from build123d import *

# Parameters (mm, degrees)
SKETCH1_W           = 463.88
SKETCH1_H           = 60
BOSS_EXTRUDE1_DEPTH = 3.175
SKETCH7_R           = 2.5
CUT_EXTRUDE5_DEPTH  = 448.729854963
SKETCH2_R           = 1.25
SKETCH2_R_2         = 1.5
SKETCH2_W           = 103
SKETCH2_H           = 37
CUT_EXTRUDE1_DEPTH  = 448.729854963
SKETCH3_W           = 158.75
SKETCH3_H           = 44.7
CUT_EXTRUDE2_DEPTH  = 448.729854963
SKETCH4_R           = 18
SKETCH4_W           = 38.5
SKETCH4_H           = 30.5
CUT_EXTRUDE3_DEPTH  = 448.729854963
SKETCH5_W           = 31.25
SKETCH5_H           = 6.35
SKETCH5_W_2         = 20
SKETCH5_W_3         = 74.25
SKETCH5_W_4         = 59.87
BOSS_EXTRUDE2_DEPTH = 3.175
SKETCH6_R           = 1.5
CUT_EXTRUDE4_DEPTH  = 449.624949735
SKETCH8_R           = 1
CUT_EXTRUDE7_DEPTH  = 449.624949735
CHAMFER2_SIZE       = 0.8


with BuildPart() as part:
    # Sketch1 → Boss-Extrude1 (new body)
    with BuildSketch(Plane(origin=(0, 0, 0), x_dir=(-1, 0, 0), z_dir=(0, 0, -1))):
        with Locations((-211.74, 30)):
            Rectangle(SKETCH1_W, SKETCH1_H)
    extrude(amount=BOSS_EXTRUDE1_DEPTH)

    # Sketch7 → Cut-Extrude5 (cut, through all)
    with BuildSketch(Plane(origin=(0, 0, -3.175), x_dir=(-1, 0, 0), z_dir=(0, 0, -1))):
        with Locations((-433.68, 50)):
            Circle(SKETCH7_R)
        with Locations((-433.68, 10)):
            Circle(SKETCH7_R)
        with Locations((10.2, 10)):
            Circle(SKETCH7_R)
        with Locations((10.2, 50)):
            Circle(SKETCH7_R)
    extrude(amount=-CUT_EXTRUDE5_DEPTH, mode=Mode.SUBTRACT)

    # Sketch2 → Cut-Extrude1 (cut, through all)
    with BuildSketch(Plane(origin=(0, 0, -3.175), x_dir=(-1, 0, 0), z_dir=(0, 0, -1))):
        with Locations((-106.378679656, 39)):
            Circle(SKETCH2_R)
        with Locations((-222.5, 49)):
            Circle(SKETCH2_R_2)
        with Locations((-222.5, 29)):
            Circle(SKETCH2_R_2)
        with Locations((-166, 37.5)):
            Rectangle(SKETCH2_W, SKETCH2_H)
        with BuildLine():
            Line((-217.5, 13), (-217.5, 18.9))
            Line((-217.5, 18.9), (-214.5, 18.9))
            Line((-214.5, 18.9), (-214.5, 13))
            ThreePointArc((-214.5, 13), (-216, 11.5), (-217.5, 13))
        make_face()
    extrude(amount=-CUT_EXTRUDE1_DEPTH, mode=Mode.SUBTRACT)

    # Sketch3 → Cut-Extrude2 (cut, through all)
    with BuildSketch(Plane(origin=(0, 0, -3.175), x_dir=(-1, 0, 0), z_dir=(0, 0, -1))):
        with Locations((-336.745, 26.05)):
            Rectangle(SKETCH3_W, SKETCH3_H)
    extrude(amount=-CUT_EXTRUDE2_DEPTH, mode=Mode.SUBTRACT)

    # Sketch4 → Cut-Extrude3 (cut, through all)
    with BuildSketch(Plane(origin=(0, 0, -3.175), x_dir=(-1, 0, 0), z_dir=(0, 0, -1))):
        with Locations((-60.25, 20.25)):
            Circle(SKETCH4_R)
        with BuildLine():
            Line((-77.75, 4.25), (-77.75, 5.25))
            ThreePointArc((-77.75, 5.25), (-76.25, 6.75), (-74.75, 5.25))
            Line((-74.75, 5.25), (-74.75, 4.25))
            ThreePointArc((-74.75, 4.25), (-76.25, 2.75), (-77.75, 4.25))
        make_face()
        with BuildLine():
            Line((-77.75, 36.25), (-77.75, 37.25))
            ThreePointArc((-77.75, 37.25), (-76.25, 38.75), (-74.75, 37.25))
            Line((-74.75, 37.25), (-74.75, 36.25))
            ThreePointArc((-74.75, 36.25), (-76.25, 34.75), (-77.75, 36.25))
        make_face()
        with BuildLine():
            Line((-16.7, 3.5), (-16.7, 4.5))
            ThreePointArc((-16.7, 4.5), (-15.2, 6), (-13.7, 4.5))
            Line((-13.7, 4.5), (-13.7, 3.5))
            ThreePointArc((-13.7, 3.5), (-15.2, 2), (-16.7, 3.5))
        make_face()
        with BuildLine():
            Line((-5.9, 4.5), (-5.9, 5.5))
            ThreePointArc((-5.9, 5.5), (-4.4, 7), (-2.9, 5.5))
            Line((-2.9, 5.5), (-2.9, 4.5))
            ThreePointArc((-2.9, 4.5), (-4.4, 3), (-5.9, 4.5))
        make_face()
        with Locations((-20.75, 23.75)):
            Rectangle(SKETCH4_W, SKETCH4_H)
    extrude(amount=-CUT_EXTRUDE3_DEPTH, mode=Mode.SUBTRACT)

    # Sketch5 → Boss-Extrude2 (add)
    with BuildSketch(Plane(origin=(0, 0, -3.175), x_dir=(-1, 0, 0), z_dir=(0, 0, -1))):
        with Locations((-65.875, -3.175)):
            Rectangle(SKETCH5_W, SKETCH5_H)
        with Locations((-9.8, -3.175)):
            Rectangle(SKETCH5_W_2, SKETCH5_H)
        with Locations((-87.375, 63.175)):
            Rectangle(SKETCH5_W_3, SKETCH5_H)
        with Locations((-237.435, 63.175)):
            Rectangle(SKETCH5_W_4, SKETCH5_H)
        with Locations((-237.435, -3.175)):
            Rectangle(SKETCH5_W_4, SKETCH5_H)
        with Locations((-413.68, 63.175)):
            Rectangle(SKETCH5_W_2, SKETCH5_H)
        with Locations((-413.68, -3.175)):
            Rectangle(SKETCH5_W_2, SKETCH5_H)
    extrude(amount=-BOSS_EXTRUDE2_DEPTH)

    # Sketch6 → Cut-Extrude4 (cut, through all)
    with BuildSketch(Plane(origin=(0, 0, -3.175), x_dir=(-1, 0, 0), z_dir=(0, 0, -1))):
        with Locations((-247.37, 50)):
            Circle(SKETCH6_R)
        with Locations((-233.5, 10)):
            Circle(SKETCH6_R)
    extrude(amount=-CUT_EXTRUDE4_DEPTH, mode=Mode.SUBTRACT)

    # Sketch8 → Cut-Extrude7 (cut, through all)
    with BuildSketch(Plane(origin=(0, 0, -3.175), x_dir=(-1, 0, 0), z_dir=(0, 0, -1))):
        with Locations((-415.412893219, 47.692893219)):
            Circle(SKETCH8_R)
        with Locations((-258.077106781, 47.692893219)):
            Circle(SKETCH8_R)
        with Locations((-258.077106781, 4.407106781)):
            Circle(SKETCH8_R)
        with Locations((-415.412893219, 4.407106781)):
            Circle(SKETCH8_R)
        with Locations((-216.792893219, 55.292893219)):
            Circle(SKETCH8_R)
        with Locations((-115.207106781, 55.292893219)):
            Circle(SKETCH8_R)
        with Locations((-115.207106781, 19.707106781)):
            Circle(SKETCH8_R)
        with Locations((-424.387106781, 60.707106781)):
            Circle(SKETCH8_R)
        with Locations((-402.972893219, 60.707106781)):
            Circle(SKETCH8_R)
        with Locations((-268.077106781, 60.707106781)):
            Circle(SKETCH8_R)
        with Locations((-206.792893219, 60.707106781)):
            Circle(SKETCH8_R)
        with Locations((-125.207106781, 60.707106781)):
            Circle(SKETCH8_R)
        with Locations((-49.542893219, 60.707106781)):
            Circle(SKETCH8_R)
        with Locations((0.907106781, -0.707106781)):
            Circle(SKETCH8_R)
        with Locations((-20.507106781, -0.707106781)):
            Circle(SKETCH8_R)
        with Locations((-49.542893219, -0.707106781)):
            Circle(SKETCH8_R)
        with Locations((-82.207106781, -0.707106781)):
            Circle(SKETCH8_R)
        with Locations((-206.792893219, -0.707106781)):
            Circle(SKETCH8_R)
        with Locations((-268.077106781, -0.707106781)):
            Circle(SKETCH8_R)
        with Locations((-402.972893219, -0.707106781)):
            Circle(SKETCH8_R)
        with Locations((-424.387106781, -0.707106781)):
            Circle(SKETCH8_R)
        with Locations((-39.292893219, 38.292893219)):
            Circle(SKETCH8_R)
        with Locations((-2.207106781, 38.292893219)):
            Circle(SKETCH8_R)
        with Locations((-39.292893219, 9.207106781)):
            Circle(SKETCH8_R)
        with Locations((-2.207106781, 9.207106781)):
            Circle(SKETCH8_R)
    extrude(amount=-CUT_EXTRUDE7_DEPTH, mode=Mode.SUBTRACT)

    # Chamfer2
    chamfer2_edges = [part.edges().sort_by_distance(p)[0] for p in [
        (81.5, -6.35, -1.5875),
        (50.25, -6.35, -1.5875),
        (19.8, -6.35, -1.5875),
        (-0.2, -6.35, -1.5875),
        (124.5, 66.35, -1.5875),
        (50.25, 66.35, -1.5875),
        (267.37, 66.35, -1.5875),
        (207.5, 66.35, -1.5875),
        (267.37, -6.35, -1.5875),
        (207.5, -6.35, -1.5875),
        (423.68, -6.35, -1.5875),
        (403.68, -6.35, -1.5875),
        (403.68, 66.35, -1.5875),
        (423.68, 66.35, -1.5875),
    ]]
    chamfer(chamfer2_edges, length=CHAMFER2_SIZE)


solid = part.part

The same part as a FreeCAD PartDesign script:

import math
import FreeCAD as App
import Part
import Sketcher

V = App.Vector


def edges_at(feature, points):
    """Names of the edges that pass closest to the given points."""
    edges = feature.Shape.Edges
    near = lambda p: min(range(len(edges)), key=lambda i: edges[i].distToShape(Part.Vertex(*p))[0])
    return sorted({f"Edge{near(p) + 1}" for p in points})


def add_polygon(sketch, points):
    """Adds a closed chain of lines whose ends are joined by coincident constraints."""
    first, n = sketch.GeometryCount, len(points)
    for a, b in zip(points, points[1:] + points[:1]):
        sketch.addGeometry(Part.LineSegment(App.Vector(*a, 0), App.Vector(*b, 0)), False)
    for i in range(n):
        sketch.addConstraint(Sketcher.Constraint("Coincident", first + i, 2, first + (i + 1) % n, 1))

doc = App.newDocument("Part")
body = doc.addObject("PartDesign::Body", "Body")

# Sketch on XY plane
sketch1 = body.newObject("Sketcher::SketchObject", "Sketch")
sketch1.AttachmentSupport = (doc.getObject("XY_Plane"), [""])
sketch1.MapMode = "FlatFace"
add_polygon(sketch1, [(444, 60), (444, 0), (-20, 0), (-20, 60)])  # lines 0-3
sketch1.addConstraint([
    Sketcher.Constraint("Vertical", 0),
    Sketcher.Constraint("Horizontal", 1),
    Sketcher.Constraint("Vertical", 2),
    Sketcher.Constraint("Horizontal", 3),
    Sketcher.Constraint("PointOnObject", 0, 2, -1),
    Sketcher.Constraint("DistanceY", 0, 2, 0, 1, 60.0),
    Sketcher.Constraint("DistanceX", 1, 2, 1, 1, 463.88),
    Sketcher.Constraint("DistanceX", 1, 2, -1, 1, 20.2),
])
pad1 = body.newObject("PartDesign::Pad", "Pad")
pad1.Profile = sketch1
pad1.Length = 3.175
pad1.Reversed = True

# Sketch on XY plane
sketch2 = body.newObject("Sketcher::SketchObject", "Sketch001")
sketch2.AttachmentSupport = (doc.getObject("XY_Plane"), [""])
sketch2.MapMode = "FlatFace"
sketch2.AttachmentOffset = App.Placement(V(0, 0, -3.175), App.Rotation())
sketch2.addGeometry([
    Part.Circle(V(433.7, 50, 0), V(0, 0, 1), 2.5),
    Part.Circle(V(433.7, 10, 0), V(0, 0, 1), 2.5),
    Part.Circle(V(-10.2, 10, 0), V(0, 0, 1), 2.5),
    Part.Circle(V(-10.2, 50, 0), V(0, 0, 1), 2.5),
], False)
sketch2.addConstraint([
    Sketcher.Constraint("Equal", 0, 1),
    Sketcher.Constraint("Equal", 1, 2),
    Sketcher.Constraint("Equal", 2, 3),
    Sketcher.Constraint("Horizontal", 1, 3, 2, 3),
    Sketcher.Constraint("Horizontal", 0, 3, 3, 3),
    Sketcher.Constraint("Vertical", 0, 3, 1, 3),
    Sketcher.Constraint("Vertical", 2, 3, 3, 3),
    Sketcher.Constraint("Diameter", 0, 5.0),
    Sketcher.Constraint("DistanceY", -1, 1, 0, 3, 50.0),
    Sketcher.Constraint("DistanceY", -1, 1, 1, 3, 10.0),
    Sketcher.Constraint("DistanceX", 2, 3, -1, 1, 10.2),
    Sketcher.Constraint("DistanceX", -1, 1, 0, 3, 433.68),
])
pocket1 = body.newObject("PartDesign::Pocket", "Pocket")
pocket1.Profile = sketch2
pocket1.Type = "ThroughAll"
pocket1.Reversed = True

# Sketch on XY plane
sketch3 = body.newObject("Sketcher::SketchObject", "Sketch002")
sketch3.AttachmentSupport = (doc.getObject("XY_Plane"), [""])
sketch3.MapMode = "FlatFace"
sketch3.AttachmentOffset = App.Placement(V(0, 0, -3.175), App.Rotation())
sketch3.addGeometry(Part.Circle(V(106.4, 39, 0), V(0, 0, 1), 1.2), False)  # 0
sketch3.addGeometry(Part.Circle(V(222.5, 49, 0), V(0, 0, 1), 1.5), False)  # 1
sketch3.addGeometry(Part.Circle(V(222.5, 29, 0), V(0, 0, 1), 1.5), False)  # 2
add_polygon(sketch3, [(217.5, 56), (217.5, 19), (114.5, 19), (114.5, 56)])  # lines 3-6
sketch3.addGeometry(Part.LineSegment(V(217.5, 18.9, 0), V(217.5, 13, 0)), False)  # 7
sketch3.addGeometry(Part.ArcOfCircle(Part.Circle(V(216, 13, 0), V(0, 0, 1), 1.5), math.radians(180), math.radians(360)), False)  # 8
sketch3.addGeometry(Part.LineSegment(V(214.5, 13, 0), V(214.5, 18.9, 0)), False)  # 9
sketch3.addGeometry(Part.LineSegment(V(214.5, 18.9, 0), V(217.5, 18.9, 0)), False)  # 10
sketch3.addConstraint([
    Sketcher.Constraint("Tangent", 7, 2, 8, 2),
    Sketcher.Constraint("Tangent", 8, 1, 9, 1),
    Sketcher.Constraint("Coincident", 9, 2, 10, 1),
    Sketcher.Constraint("Coincident", 10, 2, 7, 1),
    Sketcher.Constraint("Vertical", 3),
    Sketcher.Constraint("Horizontal", 4),
    Sketcher.Constraint("Vertical", 5),
    Sketcher.Constraint("Horizontal", 6),
    Sketcher.Constraint("Vertical", 7),
    Sketcher.Constraint("Vertical", 9),
    Sketcher.Constraint("Horizontal", 10),
    Sketcher.Constraint("Equal", 1, 2),
    Sketcher.Constraint("Equal", 2, 8),
    Sketcher.Constraint("Vertical", 1, 3, 2, 3),
    Sketcher.Constraint("Vertical", 6, 2, 7, 2),
    Sketcher.Constraint("Diameter", 1, 3.0),
    Sketcher.Constraint("Diameter", 0, 2.5),
    Sketcher.Constraint("DistanceX", 4, 2, 4, 1, 103.0),
    Sketcher.Constraint("DistanceY", 3, 2, 3, 1, 37.0),
    Sketcher.Constraint("DistanceY", 7, 2, 7, 1, 5.9),
    Sketcher.Constraint("DistanceY", -1, 1, 0, 3, 39.0),
    Sketcher.Constraint("DistanceY", -1, 1, 1, 3, 49.0),
    Sketcher.Constraint("DistanceY", -1, 1, 2, 3, 29.0),
    Sketcher.Constraint("DistanceX", -1, 1, 8, 3, 216.0),
    Sketcher.Constraint("DistanceY", -1, 1, 8, 3, 13.0),
    Sketcher.Constraint("DistanceY", -1, 1, 3, 2, 19.0),
    Sketcher.Constraint("DistanceX", 3, 2, 2, 3, 5.0),
    Sketcher.Constraint("DistanceX", -1, 1, 0, 3, 106.37868),
])
pocket2 = body.newObject("PartDesign::Pocket", "Pocket001")
pocket2.Profile = sketch3
pocket2.Type = "ThroughAll"
pocket2.Reversed = True

# Sketch on XY plane
sketch4 = body.newObject("Sketcher::SketchObject", "Sketch003")
sketch4.AttachmentSupport = (doc.getObject("XY_Plane"), [""])
sketch4.MapMode = "FlatFace"
sketch4.AttachmentOffset = App.Placement(V(0, 0, -3.175), App.Rotation())
add_polygon(sketch4, [(416, 48), (416, 4), (257, 4), (257, 48)])  # lines 0-3
sketch4.addConstraint([
    Sketcher.Constraint("Vertical", 0),
    Sketcher.Constraint("Horizontal", 1),
    Sketcher.Constraint("Vertical", 2),
    Sketcher.Constraint("Horizontal", 3),
    Sketcher.Constraint("DistanceY", 0, 2, 0, 1, 44.7),
    Sketcher.Constraint("DistanceX", 1, 2, 1, 1, 158.75),
    Sketcher.Constraint("DistanceY", -1, 1, 0, 2, 3.7),
    Sketcher.Constraint("DistanceX", -1, 1, 0, 2, 416.12),
])
pocket3 = body.newObject("PartDesign::Pocket", "Pocket002")
pocket3.Profile = sketch4
pocket3.Type = "ThroughAll"
pocket3.Reversed = True

# Sketch on XY plane
sketch5 = body.newObject("Sketcher::SketchObject", "Sketch004")
sketch5.AttachmentSupport = (doc.getObject("XY_Plane"), [""])
sketch5.MapMode = "FlatFace"
sketch5.AttachmentOffset = App.Placement(V(0, 0, -3.175), App.Rotation())
sketch5.addGeometry(Part.Circle(V(60.2, 20.2, 0), V(0, 0, 1), 18), False)  # 0
sketch5.addGeometry(Part.LineSegment(V(77.8, 5.2, 0), V(77.8, 4.2, 0)), False)  # 1
sketch5.addGeometry(Part.ArcOfCircle(Part.Circle(V(76.2, 4.2, 0), V(0, 0, 1), 1.5), math.radians(180), math.radians(360)), False)  # 2
sketch5.addGeometry(Part.LineSegment(V(74.8, 4.2, 0), V(74.8, 5.2, 0)), False)  # 3
sketch5.addGeometry(Part.ArcOfCircle(Part.Circle(V(76.2, 5.2, 0), V(0, 0, 1), 1.5), math.radians(0), math.radians(180)), False)  # 4
sketch5.addGeometry(Part.LineSegment(V(77.8, 37.2, 0), V(77.8, 36.2, 0)), False)  # 5
sketch5.addGeometry(Part.ArcOfCircle(Part.Circle(V(76.2, 36.2, 0), V(0, 0, 1), 1.5), math.radians(180), math.radians(360)), False)  # 6
sketch5.addGeometry(Part.LineSegment(V(74.8, 36.2, 0), V(74.8, 37.2, 0)), False)  # 7
sketch5.addGeometry(Part.ArcOfCircle(Part.Circle(V(76.2, 37.2, 0), V(0, 0, 1), 1.5), math.radians(0), math.radians(180)), False)  # 8
sketch5.addGeometry(Part.LineSegment(V(16.7, 4.5, 0), V(16.7, 3.5, 0)), False)  # 9
sketch5.addGeometry(Part.ArcOfCircle(Part.Circle(V(15.2, 3.5, 0), V(0, 0, 1), 1.5), math.radians(180), math.radians(360)), False)  # 10
sketch5.addGeometry(Part.LineSegment(V(13.7, 3.5, 0), V(13.7, 4.5, 0)), False)  # 11
sketch5.addGeometry(Part.ArcOfCircle(Part.Circle(V(15.2, 4.5, 0), V(0, 0, 1), 1.5), math.radians(0), math.radians(180)), False)  # 12
sketch5.addGeometry(Part.LineSegment(V(5.9, 5.5, 0), V(5.9, 4.5, 0)), False)  # 13
sketch5.addGeometry(Part.ArcOfCircle(Part.Circle(V(4.4, 4.5, 0), V(0, 0, 1), 1.5), math.radians(180), math.radians(360)), False)  # 14
sketch5.addGeometry(Part.LineSegment(V(2.9, 4.5, 0), V(2.9, 5.5, 0)), False)  # 15
sketch5.addGeometry(Part.ArcOfCircle(Part.Circle(V(4.4, 5.5, 0), V(0, 0, 1), 1.5), math.radians(0), math.radians(180)), False)  # 16
add_polygon(sketch5, [(40, 39), (40, 8.5), (1.5, 8.5), (1.5, 39)])  # lines 17-20
sketch5.addConstraint([
    Sketcher.Constraint("Tangent", 1, 2, 2, 2),
    Sketcher.Constraint("Tangent", 2, 1, 3, 1),
    Sketcher.Constraint("Tangent", 3, 2, 4, 2),
    Sketcher.Constraint("Tangent", 4, 1, 1, 1),
    Sketcher.Constraint("Tangent", 5, 2, 6, 2),
    Sketcher.Constraint("Tangent", 6, 1, 7, 1),
    Sketcher.Constraint("Tangent", 7, 2, 8, 2),
    Sketcher.Constraint("Tangent", 8, 1, 5, 1),
    Sketcher.Constraint("Tangent", 9, 2, 10, 2),
    Sketcher.Constraint("Tangent", 10, 1, 11, 1),
    Sketcher.Constraint("Tangent", 11, 2, 12, 2),
    Sketcher.Constraint("Tangent", 12, 1, 9, 1),
    Sketcher.Constraint("Tangent", 13, 2, 14, 2),
    Sketcher.Constraint("Tangent", 14, 1, 15, 1),
    Sketcher.Constraint("Tangent", 15, 2, 16, 2),
    Sketcher.Constraint("Tangent", 16, 1, 13, 1),
    Sketcher.Constraint("Vertical", 1),
    Sketcher.Constraint("Vertical", 3),
    Sketcher.Constraint("Vertical", 5),
    Sketcher.Constraint("Vertical", 7),
    Sketcher.Constraint("Vertical", 9),
    Sketcher.Constraint("Vertical", 11),
    Sketcher.Constraint("Vertical", 13),
    Sketcher.Constraint("Vertical", 15),
    Sketcher.Constraint("Vertical", 17),
    Sketcher.Constraint("Horizontal", 18),
    Sketcher.Constraint("Vertical", 19),
    Sketcher.Constraint("Horizontal", 20),
    Sketcher.Constraint("Equal", 4, 6),
    Sketcher.Constraint("Equal", 8, 10),
    Sketcher.Constraint("Equal", 12, 14),
    Sketcher.Constraint("Horizontal", 12, 3, 14, 3),
    Sketcher.Constraint("Vertical", 4, 3, 6, 3),
    Sketcher.Constraint("Equal", 3, 5),
    Sketcher.Constraint("Equal", 7, 9),
    Sketcher.Constraint("Equal", 11, 13),
    Sketcher.Constraint("Diameter", 0, 36.0),
    Sketcher.Constraint("Radius", 2, 1.5),
    Sketcher.Constraint("DistanceY", 1, 2, 1, 1, 1.0),
    Sketcher.Constraint("DistanceX", 18, 2, 18, 1, 38.5),
    Sketcher.Constraint("DistanceY", 17, 2, 17, 1, 30.5),
    Sketcher.Constraint("DistanceX", -1, 1, 17, 2, 40.0),
    Sketcher.Constraint("DistanceY", -1, 1, 19, 2, 39.0),
    Sketcher.Constraint("DistanceX", 0, 3, 2, 3, 16.0),
    Sketcher.Constraint("DistanceY", 2, 3, 0, 3, 16.0),
    Sketcher.Constraint("DistanceY", 0, 3, 6, 3, 16.0),
    Sketcher.Constraint("DistanceY", 12, 1, 17, 2, 4.0),
    Sketcher.Constraint("DistanceX", -1, 1, 10, 3, 15.2),
    Sketcher.Constraint("DistanceX", -1, 1, 14, 3, 4.4),
    Sketcher.Constraint("DistanceX", -1, 1, 0, 3, 60.25),
    Sketcher.Constraint("DistanceY", -1, 1, 0, 3, 20.25),
])
pocket4 = body.newObject("PartDesign::Pocket", "Pocket003")
pocket4.Profile = sketch5
pocket4.Type = "ThroughAll"
pocket4.Reversed = True

# Sketch on XY plane
sketch6 = body.newObject("Sketcher::SketchObject", "Sketch005")
sketch6.AttachmentSupport = (doc.getObject("XY_Plane"), [""])
sketch6.MapMode = "FlatFace"
sketch6.AttachmentOffset = App.Placement(V(0, 0, -3.175), App.Rotation())
add_polygon(sketch6, [(82, 0), (82, -6), (50, -6), (50, 0)])  # lines 0-3
add_polygon(sketch6, [(20, 0), (20, -6), (0, -6), (0, 0)])  # lines 4-7
add_polygon(sketch6, [(124, 66), (124, 60), (50, 60), (50, 66)])  # lines 8-11
add_polygon(sketch6, [(267, 66), (267, 60), (208, 60), (208, 66)])  # lines 12-15
add_polygon(sketch6, [(267, 0), (267, -6), (208, -6), (208, 0)])  # lines 16-19
add_polygon(sketch6, [(424, 66), (424, 60), (404, 60), (404, 66)])  # lines 20-23
add_polygon(sketch6, [(424, 0), (424, -6), (404, -6), (404, 0)])  # lines 24-27
sketch6.addConstraint([
    Sketcher.Constraint("Vertical", 0),
    Sketcher.Constraint("Horizontal", 1),
    Sketcher.Constraint("Vertical", 2),
    Sketcher.Constraint("Horizontal", 3),
    Sketcher.Constraint("Vertical", 4),
    Sketcher.Constraint("Horizontal", 5),
    Sketcher.Constraint("Vertical", 6),
    Sketcher.Constraint("Horizontal", 7),
    Sketcher.Constraint("Vertical", 8),
    Sketcher.Constraint("Horizontal", 9),
    Sketcher.Constraint("Vertical", 10),
    Sketcher.Constraint("Horizontal", 11),
    Sketcher.Constraint("Vertical", 12),
    Sketcher.Constraint("Horizontal", 13),
    Sketcher.Constraint("Vertical", 14),
    Sketcher.Constraint("Horizontal", 15),
    Sketcher.Constraint("Vertical", 16),
    Sketcher.Constraint("Horizontal", 17),
    Sketcher.Constraint("Vertical", 18),
    Sketcher.Constraint("Horizontal", 19),
    Sketcher.Constraint("Vertical", 20),
    Sketcher.Constraint("Horizontal", 21),
    Sketcher.Constraint("Vertical", 22),
    Sketcher.Constraint("Horizontal", 23),
    Sketcher.Constraint("Vertical", 24),
    Sketcher.Constraint("Horizontal", 25),
    Sketcher.Constraint("Vertical", 26),
    Sketcher.Constraint("Horizontal", 27),
    Sketcher.Constraint("PointOnObject", 2, 2, -1),
    Sketcher.Constraint("PointOnObject", 6, 2, -1),
    Sketcher.Constraint("PointOnObject", 18, 2, -1),
    Sketcher.Constraint("PointOnObject", 26, 2, -1),
    Sketcher.Constraint("Horizontal", 1, 2, 4, 2),
    Sketcher.Constraint("Horizontal", 9, 2, 12, 2),
    Sketcher.Constraint("Horizontal", 11, 2, 14, 2),
    Sketcher.Constraint("Horizontal", 5, 2, 16, 2),
    Sketcher.Constraint("Horizontal", 13, 2, 20, 2),
    Sketcher.Constraint("Horizontal", 15, 2, 22, 2),
    Sketcher.Constraint("Horizontal", 17, 2, 24, 2),
    Sketcher.Constraint("Vertical", 2, 2, 9, 2),
    Sketcher.Constraint("Vertical", 15, 2, 16, 2),
    Sketcher.Constraint("Vertical", 14, 2, 17, 2),
    Sketcher.Constraint("Vertical", 23, 2, 24, 2),
    Sketcher.Constraint("Vertical", 22, 2, 25, 2),
    Sketcher.Constraint("Equal", 7, 21),
    Sketcher.Constraint("Equal", 6, 8),
    Sketcher.Constraint("DistanceX", 5, 2, 5, 1, 20.0),
    Sketcher.Constraint("DistanceY", -1, 1, 8, 2, 60.0),
    Sketcher.Constraint("DistanceX", 3, 2, 8, 2, 43.0),
    Sketcher.Constraint("DistanceX", 8, 2, 13, 2, 83.0),
    Sketcher.Constraint("DistanceX", 1, 2, 1, 1, 31.25),
    Sketcher.Constraint("DistanceX", 13, 2, 13, 1, 59.87),
    Sketcher.Constraint("DistanceY", 0, 2, 0, 1, 6.35),
    Sketcher.Constraint("DistanceX", -1, 1, 0, 2, 81.5),
    Sketcher.Constraint("DistanceX", -1, 1, 4, 2, 19.8),
    Sketcher.Constraint("DistanceX", -1, 1, 20, 2, 423.68),
])
pad2 = body.newObject("PartDesign::Pad", "Pad001")
pad2.Profile = sketch6
pad2.Length = 3.175

# Sketch on XY plane
sketch7 = body.newObject("Sketcher::SketchObject", "Sketch006")
sketch7.AttachmentSupport = (doc.getObject("XY_Plane"), [""])
sketch7.MapMode = "FlatFace"
sketch7.AttachmentOffset = App.Placement(V(0, 0, -3.175), App.Rotation())
sketch7.addGeometry([
    Part.Circle(V(247.4, 50, 0), V(0, 0, 1), 1.5),
    Part.Circle(V(233.5, 10, 0), V(0, 0, 1), 1.5),
], False)
sketch7.addConstraint([
    Sketcher.Constraint("Equal", 0, 1),
    Sketcher.Constraint("Diameter", 0, 3.0),
    Sketcher.Constraint("DistanceY", -1, 1, 0, 3, 50.0),
    Sketcher.Constraint("DistanceY", -1, 1, 1, 3, 10.0),
    Sketcher.Constraint("DistanceX", -1, 1, 1, 3, 233.5),
    Sketcher.Constraint("DistanceX", -1, 1, 0, 3, 247.37),
])
pocket5 = body.newObject("PartDesign::Pocket", "Pocket004")
pocket5.Profile = sketch7
pocket5.Type = "ThroughAll"
pocket5.Reversed = True

# Sketch on XY plane
sketch8 = body.newObject("Sketcher::SketchObject", "Sketch007")
sketch8.AttachmentSupport = (doc.getObject("XY_Plane"), [""])
sketch8.MapMode = "FlatFace"
sketch8.AttachmentOffset = App.Placement(V(0, 0, -3.175), App.Rotation())
sketch8.addGeometry([
    Part.Circle(V(415.4, 47.7, 0), V(0, 0, 1), 1),  # 0
    Part.Circle(V(258.1, 47.7, 0), V(0, 0, 1), 1),  # 1
    Part.Circle(V(258.1, 4.4, 0), V(0, 0, 1), 1),  # 2
    Part.Circle(V(415.4, 4.4, 0), V(0, 0, 1), 1),  # 3
    Part.Circle(V(216.8, 55.3, 0), V(0, 0, 1), 1),  # 4
    Part.Circle(V(115.2, 55.3, 0), V(0, 0, 1), 1),  # 5
    Part.Circle(V(115.2, 19.7, 0), V(0, 0, 1), 1),  # 6
    Part.Circle(V(424.4, 60.7, 0), V(0, 0, 1), 1),  # 7
    Part.Circle(V(403, 60.7, 0), V(0, 0, 1), 1),  # 8
    Part.Circle(V(268.1, 60.7, 0), V(0, 0, 1), 1),  # 9
    Part.Circle(V(206.8, 60.7, 0), V(0, 0, 1), 1),  # 10
    Part.Circle(V(125.2, 60.7, 0), V(0, 0, 1), 1),  # 11
    Part.Circle(V(49.5, 60.7, 0), V(0, 0, 1), 1),  # 12
    Part.Circle(V(-0.9, -0.7, 0), V(0, 0, 1), 1),  # 13
    Part.Circle(V(20.5, -0.7, 0), V(0, 0, 1), 1),  # 14
    Part.Circle(V(49.5, -0.7, 0), V(0, 0, 1), 1),  # 15
    Part.Circle(V(82.2, -0.7, 0), V(0, 0, 1), 1),  # 16
    Part.Circle(V(206.8, -0.7, 0), V(0, 0, 1), 1),  # 17
    Part.Circle(V(268.1, -0.7, 0), V(0, 0, 1), 1),  # 18
    Part.Circle(V(403, -0.7, 0), V(0, 0, 1), 1),  # 19
    Part.Circle(V(424.4, -0.7, 0), V(0, 0, 1), 1),  # 20
    Part.Circle(V(39.3, 38.3, 0), V(0, 0, 1), 1),  # 21
    Part.Circle(V(2.2, 38.3, 0), V(0, 0, 1), 1),  # 22
    Part.Circle(V(39.3, 9.2, 0), V(0, 0, 1), 1),  # 23
    Part.Circle(V(2.2, 9.2, 0), V(0, 0, 1), 1),  # 24
], False)
sketch8.addConstraint([
    Sketcher.Constraint("Equal", 0, 1),
    Sketcher.Constraint("Equal", 1, 2),
    Sketcher.Constraint("Equal", 2, 3),
    Sketcher.Constraint("Equal", 3, 4),
    Sketcher.Constraint("Equal", 4, 5),
    Sketcher.Constraint("Equal", 5, 6),
    Sketcher.Constraint("Equal", 6, 7),
    Sketcher.Constraint("Equal", 7, 8),
    Sketcher.Constraint("Equal", 8, 9),
    Sketcher.Constraint("Equal", 9, 10),
    Sketcher.Constraint("Equal", 10, 11),
    Sketcher.Constraint("Equal", 11, 12),
    Sketcher.Constraint("Equal", 12, 13),
    Sketcher.Constraint("Equal", 13, 14),
    Sketcher.Constraint("Equal", 14, 15),
    Sketcher.Constraint("Equal", 15, 16),
    Sketcher.Constraint("Equal", 16, 17),
    Sketcher.Constraint("Equal", 17, 18),
    Sketcher.Constraint("Equal", 18, 19),
    Sketcher.Constraint("Equal", 19, 20),
    Sketcher.Constraint("Equal", 20, 21),
    Sketcher.Constraint("Equal", 21, 22),
    Sketcher.Constraint("Equal", 22, 23),
    Sketcher.Constraint("Equal", 23, 24),
    Sketcher.Constraint("Horizontal", 0, 3, 1, 3),
    Sketcher.Constraint("Horizontal", 2, 3, 3, 3),
    Sketcher.Constraint("Horizontal", 4, 3, 5, 3),
    Sketcher.Constraint("Horizontal", 7, 3, 8, 3),
    Sketcher.Constraint("Horizontal", 8, 3, 9, 3),
    Sketcher.Constraint("Horizontal", 9, 3, 10, 3),
    Sketcher.Constraint("Horizontal", 10, 3, 11, 3),
    Sketcher.Constraint("Horizontal", 11, 3, 12, 3),
    Sketcher.Constraint("Horizontal", 13, 3, 14, 3),
    Sketcher.Constraint("Horizontal", 14, 3, 15, 3),
    Sketcher.Constraint("Horizontal", 15, 3, 16, 3),
    Sketcher.Constraint("Horizontal", 16, 3, 17, 3),
    Sketcher.Constraint("Horizontal", 17, 3, 18, 3),
    Sketcher.Constraint("Horizontal", 18, 3, 19, 3),
    Sketcher.Constraint("Horizontal", 19, 3, 20, 3),
    Sketcher.Constraint("Horizontal", 21, 3, 22, 3),
    Sketcher.Constraint("Horizontal", 23, 3, 24, 3),
    Sketcher.Constraint("Vertical", 1, 3, 2, 3),
    Sketcher.Constraint("Vertical", 0, 3, 3, 3),
    Sketcher.Constraint("Vertical", 5, 3, 6, 3),
    Sketcher.Constraint("Vertical", 12, 3, 15, 3),
    Sketcher.Constraint("Vertical", 10, 3, 17, 3),
    Sketcher.Constraint("Vertical", 9, 3, 18, 3),
    Sketcher.Constraint("Vertical", 8, 3, 19, 3),
    Sketcher.Constraint("Vertical", 7, 3, 20, 3),
    Sketcher.Constraint("Vertical", 21, 3, 23, 3),
    Sketcher.Constraint("Vertical", 22, 3, 24, 3),
    Sketcher.Constraint("Diameter", 0, 2.0),
    Sketcher.Constraint("DistanceX", 1, 3, 9, 3, 10.0),
    Sketcher.Constraint("DistanceX", 10, 3, 4, 3, 10.0),
    Sketcher.Constraint("DistanceX", 5, 3, 11, 3, 10.0),
    Sketcher.Constraint("DistanceY", 6, 3, 11, 3, 41.0),
    Sketcher.Constraint("DistanceY", 13, 3, 5, 3, 56.0),
    Sketcher.Constraint("DistanceX", 16, 3, 6, 3, 33.0),
    Sketcher.Constraint("DistanceY", 15, 3, 21, 3, 39.0),
    Sketcher.Constraint("DistanceY", 1, 3, 4, 3, 7.6),
    Sketcher.Constraint("DistanceY", 2, 3, 6, 3, 15.3),
    Sketcher.Constraint("DistanceX", 13, 3, 10, 3, 207.7),
    Sketcher.Constraint("DistanceX", 14, 3, 6, 3, 94.7),
    Sketcher.Constraint("DistanceX", 13, 3, 21, 3, 40.2),
    Sketcher.Constraint("DistanceX", 22, 3, 14, 3, 18.3),
    Sketcher.Constraint("DistanceX", 4, 3, 0, 3, 198.62),
    Sketcher.Constraint("DistanceX", 5, 3, 1, 3, 142.87),
    Sketcher.Constraint("DistanceX", 1, 3, 7, 3, 166.31),
    Sketcher.Constraint("DistanceX", 8, 3, 0, 3, 12.44),
    Sketcher.Constraint("DistanceX", 12, 3, 10, 3, 157.25),
    Sketcher.Constraint("DistanceX", -1, 1, 0, 3, 415.412893),
    Sketcher.Constraint("DistanceY", -1, 1, 0, 3, 47.692893),
    Sketcher.Constraint("DistanceX", -1, 1, 1, 3, 258.077107),
    Sketcher.Constraint("DistanceY", -1, 1, 2, 3, 4.407107),
    Sketcher.Constraint("DistanceY", -1, 1, 23, 3, 9.207107),
])
pocket6 = body.newObject("PartDesign::Pocket", "Pocket005")
pocket6.Profile = sketch8
pocket6.Type = "ThroughAll"
pocket6.Reversed = True
doc.recompute()

chamfer = body.newObject("PartDesign::Chamfer", "Chamfer")
chamfer.Base = (pocket6, edges_at(pocket6, [
    (81.5, -6.35, -1.587),
    (50.25, -6.35, -1.587),
    (19.8, -6.35, -1.587),
    (-0.2, -6.35, -1.587),
    (124.5, 66.35, -1.587),
    (50.25, 66.35, -1.587),
    (267.37, 66.35, -1.587),
    (207.5, 66.35, -1.587),
    (267.37, -6.35, -1.587),
    (207.5, -6.35, -1.587),
    (423.68, -6.35, -1.587),
    (403.68, -6.35, -1.587),
    (403.68, 66.35, -1.587),
    (423.68, 66.35, -1.587),
]))
chamfer.Size = 0.8

doc.recompute()
